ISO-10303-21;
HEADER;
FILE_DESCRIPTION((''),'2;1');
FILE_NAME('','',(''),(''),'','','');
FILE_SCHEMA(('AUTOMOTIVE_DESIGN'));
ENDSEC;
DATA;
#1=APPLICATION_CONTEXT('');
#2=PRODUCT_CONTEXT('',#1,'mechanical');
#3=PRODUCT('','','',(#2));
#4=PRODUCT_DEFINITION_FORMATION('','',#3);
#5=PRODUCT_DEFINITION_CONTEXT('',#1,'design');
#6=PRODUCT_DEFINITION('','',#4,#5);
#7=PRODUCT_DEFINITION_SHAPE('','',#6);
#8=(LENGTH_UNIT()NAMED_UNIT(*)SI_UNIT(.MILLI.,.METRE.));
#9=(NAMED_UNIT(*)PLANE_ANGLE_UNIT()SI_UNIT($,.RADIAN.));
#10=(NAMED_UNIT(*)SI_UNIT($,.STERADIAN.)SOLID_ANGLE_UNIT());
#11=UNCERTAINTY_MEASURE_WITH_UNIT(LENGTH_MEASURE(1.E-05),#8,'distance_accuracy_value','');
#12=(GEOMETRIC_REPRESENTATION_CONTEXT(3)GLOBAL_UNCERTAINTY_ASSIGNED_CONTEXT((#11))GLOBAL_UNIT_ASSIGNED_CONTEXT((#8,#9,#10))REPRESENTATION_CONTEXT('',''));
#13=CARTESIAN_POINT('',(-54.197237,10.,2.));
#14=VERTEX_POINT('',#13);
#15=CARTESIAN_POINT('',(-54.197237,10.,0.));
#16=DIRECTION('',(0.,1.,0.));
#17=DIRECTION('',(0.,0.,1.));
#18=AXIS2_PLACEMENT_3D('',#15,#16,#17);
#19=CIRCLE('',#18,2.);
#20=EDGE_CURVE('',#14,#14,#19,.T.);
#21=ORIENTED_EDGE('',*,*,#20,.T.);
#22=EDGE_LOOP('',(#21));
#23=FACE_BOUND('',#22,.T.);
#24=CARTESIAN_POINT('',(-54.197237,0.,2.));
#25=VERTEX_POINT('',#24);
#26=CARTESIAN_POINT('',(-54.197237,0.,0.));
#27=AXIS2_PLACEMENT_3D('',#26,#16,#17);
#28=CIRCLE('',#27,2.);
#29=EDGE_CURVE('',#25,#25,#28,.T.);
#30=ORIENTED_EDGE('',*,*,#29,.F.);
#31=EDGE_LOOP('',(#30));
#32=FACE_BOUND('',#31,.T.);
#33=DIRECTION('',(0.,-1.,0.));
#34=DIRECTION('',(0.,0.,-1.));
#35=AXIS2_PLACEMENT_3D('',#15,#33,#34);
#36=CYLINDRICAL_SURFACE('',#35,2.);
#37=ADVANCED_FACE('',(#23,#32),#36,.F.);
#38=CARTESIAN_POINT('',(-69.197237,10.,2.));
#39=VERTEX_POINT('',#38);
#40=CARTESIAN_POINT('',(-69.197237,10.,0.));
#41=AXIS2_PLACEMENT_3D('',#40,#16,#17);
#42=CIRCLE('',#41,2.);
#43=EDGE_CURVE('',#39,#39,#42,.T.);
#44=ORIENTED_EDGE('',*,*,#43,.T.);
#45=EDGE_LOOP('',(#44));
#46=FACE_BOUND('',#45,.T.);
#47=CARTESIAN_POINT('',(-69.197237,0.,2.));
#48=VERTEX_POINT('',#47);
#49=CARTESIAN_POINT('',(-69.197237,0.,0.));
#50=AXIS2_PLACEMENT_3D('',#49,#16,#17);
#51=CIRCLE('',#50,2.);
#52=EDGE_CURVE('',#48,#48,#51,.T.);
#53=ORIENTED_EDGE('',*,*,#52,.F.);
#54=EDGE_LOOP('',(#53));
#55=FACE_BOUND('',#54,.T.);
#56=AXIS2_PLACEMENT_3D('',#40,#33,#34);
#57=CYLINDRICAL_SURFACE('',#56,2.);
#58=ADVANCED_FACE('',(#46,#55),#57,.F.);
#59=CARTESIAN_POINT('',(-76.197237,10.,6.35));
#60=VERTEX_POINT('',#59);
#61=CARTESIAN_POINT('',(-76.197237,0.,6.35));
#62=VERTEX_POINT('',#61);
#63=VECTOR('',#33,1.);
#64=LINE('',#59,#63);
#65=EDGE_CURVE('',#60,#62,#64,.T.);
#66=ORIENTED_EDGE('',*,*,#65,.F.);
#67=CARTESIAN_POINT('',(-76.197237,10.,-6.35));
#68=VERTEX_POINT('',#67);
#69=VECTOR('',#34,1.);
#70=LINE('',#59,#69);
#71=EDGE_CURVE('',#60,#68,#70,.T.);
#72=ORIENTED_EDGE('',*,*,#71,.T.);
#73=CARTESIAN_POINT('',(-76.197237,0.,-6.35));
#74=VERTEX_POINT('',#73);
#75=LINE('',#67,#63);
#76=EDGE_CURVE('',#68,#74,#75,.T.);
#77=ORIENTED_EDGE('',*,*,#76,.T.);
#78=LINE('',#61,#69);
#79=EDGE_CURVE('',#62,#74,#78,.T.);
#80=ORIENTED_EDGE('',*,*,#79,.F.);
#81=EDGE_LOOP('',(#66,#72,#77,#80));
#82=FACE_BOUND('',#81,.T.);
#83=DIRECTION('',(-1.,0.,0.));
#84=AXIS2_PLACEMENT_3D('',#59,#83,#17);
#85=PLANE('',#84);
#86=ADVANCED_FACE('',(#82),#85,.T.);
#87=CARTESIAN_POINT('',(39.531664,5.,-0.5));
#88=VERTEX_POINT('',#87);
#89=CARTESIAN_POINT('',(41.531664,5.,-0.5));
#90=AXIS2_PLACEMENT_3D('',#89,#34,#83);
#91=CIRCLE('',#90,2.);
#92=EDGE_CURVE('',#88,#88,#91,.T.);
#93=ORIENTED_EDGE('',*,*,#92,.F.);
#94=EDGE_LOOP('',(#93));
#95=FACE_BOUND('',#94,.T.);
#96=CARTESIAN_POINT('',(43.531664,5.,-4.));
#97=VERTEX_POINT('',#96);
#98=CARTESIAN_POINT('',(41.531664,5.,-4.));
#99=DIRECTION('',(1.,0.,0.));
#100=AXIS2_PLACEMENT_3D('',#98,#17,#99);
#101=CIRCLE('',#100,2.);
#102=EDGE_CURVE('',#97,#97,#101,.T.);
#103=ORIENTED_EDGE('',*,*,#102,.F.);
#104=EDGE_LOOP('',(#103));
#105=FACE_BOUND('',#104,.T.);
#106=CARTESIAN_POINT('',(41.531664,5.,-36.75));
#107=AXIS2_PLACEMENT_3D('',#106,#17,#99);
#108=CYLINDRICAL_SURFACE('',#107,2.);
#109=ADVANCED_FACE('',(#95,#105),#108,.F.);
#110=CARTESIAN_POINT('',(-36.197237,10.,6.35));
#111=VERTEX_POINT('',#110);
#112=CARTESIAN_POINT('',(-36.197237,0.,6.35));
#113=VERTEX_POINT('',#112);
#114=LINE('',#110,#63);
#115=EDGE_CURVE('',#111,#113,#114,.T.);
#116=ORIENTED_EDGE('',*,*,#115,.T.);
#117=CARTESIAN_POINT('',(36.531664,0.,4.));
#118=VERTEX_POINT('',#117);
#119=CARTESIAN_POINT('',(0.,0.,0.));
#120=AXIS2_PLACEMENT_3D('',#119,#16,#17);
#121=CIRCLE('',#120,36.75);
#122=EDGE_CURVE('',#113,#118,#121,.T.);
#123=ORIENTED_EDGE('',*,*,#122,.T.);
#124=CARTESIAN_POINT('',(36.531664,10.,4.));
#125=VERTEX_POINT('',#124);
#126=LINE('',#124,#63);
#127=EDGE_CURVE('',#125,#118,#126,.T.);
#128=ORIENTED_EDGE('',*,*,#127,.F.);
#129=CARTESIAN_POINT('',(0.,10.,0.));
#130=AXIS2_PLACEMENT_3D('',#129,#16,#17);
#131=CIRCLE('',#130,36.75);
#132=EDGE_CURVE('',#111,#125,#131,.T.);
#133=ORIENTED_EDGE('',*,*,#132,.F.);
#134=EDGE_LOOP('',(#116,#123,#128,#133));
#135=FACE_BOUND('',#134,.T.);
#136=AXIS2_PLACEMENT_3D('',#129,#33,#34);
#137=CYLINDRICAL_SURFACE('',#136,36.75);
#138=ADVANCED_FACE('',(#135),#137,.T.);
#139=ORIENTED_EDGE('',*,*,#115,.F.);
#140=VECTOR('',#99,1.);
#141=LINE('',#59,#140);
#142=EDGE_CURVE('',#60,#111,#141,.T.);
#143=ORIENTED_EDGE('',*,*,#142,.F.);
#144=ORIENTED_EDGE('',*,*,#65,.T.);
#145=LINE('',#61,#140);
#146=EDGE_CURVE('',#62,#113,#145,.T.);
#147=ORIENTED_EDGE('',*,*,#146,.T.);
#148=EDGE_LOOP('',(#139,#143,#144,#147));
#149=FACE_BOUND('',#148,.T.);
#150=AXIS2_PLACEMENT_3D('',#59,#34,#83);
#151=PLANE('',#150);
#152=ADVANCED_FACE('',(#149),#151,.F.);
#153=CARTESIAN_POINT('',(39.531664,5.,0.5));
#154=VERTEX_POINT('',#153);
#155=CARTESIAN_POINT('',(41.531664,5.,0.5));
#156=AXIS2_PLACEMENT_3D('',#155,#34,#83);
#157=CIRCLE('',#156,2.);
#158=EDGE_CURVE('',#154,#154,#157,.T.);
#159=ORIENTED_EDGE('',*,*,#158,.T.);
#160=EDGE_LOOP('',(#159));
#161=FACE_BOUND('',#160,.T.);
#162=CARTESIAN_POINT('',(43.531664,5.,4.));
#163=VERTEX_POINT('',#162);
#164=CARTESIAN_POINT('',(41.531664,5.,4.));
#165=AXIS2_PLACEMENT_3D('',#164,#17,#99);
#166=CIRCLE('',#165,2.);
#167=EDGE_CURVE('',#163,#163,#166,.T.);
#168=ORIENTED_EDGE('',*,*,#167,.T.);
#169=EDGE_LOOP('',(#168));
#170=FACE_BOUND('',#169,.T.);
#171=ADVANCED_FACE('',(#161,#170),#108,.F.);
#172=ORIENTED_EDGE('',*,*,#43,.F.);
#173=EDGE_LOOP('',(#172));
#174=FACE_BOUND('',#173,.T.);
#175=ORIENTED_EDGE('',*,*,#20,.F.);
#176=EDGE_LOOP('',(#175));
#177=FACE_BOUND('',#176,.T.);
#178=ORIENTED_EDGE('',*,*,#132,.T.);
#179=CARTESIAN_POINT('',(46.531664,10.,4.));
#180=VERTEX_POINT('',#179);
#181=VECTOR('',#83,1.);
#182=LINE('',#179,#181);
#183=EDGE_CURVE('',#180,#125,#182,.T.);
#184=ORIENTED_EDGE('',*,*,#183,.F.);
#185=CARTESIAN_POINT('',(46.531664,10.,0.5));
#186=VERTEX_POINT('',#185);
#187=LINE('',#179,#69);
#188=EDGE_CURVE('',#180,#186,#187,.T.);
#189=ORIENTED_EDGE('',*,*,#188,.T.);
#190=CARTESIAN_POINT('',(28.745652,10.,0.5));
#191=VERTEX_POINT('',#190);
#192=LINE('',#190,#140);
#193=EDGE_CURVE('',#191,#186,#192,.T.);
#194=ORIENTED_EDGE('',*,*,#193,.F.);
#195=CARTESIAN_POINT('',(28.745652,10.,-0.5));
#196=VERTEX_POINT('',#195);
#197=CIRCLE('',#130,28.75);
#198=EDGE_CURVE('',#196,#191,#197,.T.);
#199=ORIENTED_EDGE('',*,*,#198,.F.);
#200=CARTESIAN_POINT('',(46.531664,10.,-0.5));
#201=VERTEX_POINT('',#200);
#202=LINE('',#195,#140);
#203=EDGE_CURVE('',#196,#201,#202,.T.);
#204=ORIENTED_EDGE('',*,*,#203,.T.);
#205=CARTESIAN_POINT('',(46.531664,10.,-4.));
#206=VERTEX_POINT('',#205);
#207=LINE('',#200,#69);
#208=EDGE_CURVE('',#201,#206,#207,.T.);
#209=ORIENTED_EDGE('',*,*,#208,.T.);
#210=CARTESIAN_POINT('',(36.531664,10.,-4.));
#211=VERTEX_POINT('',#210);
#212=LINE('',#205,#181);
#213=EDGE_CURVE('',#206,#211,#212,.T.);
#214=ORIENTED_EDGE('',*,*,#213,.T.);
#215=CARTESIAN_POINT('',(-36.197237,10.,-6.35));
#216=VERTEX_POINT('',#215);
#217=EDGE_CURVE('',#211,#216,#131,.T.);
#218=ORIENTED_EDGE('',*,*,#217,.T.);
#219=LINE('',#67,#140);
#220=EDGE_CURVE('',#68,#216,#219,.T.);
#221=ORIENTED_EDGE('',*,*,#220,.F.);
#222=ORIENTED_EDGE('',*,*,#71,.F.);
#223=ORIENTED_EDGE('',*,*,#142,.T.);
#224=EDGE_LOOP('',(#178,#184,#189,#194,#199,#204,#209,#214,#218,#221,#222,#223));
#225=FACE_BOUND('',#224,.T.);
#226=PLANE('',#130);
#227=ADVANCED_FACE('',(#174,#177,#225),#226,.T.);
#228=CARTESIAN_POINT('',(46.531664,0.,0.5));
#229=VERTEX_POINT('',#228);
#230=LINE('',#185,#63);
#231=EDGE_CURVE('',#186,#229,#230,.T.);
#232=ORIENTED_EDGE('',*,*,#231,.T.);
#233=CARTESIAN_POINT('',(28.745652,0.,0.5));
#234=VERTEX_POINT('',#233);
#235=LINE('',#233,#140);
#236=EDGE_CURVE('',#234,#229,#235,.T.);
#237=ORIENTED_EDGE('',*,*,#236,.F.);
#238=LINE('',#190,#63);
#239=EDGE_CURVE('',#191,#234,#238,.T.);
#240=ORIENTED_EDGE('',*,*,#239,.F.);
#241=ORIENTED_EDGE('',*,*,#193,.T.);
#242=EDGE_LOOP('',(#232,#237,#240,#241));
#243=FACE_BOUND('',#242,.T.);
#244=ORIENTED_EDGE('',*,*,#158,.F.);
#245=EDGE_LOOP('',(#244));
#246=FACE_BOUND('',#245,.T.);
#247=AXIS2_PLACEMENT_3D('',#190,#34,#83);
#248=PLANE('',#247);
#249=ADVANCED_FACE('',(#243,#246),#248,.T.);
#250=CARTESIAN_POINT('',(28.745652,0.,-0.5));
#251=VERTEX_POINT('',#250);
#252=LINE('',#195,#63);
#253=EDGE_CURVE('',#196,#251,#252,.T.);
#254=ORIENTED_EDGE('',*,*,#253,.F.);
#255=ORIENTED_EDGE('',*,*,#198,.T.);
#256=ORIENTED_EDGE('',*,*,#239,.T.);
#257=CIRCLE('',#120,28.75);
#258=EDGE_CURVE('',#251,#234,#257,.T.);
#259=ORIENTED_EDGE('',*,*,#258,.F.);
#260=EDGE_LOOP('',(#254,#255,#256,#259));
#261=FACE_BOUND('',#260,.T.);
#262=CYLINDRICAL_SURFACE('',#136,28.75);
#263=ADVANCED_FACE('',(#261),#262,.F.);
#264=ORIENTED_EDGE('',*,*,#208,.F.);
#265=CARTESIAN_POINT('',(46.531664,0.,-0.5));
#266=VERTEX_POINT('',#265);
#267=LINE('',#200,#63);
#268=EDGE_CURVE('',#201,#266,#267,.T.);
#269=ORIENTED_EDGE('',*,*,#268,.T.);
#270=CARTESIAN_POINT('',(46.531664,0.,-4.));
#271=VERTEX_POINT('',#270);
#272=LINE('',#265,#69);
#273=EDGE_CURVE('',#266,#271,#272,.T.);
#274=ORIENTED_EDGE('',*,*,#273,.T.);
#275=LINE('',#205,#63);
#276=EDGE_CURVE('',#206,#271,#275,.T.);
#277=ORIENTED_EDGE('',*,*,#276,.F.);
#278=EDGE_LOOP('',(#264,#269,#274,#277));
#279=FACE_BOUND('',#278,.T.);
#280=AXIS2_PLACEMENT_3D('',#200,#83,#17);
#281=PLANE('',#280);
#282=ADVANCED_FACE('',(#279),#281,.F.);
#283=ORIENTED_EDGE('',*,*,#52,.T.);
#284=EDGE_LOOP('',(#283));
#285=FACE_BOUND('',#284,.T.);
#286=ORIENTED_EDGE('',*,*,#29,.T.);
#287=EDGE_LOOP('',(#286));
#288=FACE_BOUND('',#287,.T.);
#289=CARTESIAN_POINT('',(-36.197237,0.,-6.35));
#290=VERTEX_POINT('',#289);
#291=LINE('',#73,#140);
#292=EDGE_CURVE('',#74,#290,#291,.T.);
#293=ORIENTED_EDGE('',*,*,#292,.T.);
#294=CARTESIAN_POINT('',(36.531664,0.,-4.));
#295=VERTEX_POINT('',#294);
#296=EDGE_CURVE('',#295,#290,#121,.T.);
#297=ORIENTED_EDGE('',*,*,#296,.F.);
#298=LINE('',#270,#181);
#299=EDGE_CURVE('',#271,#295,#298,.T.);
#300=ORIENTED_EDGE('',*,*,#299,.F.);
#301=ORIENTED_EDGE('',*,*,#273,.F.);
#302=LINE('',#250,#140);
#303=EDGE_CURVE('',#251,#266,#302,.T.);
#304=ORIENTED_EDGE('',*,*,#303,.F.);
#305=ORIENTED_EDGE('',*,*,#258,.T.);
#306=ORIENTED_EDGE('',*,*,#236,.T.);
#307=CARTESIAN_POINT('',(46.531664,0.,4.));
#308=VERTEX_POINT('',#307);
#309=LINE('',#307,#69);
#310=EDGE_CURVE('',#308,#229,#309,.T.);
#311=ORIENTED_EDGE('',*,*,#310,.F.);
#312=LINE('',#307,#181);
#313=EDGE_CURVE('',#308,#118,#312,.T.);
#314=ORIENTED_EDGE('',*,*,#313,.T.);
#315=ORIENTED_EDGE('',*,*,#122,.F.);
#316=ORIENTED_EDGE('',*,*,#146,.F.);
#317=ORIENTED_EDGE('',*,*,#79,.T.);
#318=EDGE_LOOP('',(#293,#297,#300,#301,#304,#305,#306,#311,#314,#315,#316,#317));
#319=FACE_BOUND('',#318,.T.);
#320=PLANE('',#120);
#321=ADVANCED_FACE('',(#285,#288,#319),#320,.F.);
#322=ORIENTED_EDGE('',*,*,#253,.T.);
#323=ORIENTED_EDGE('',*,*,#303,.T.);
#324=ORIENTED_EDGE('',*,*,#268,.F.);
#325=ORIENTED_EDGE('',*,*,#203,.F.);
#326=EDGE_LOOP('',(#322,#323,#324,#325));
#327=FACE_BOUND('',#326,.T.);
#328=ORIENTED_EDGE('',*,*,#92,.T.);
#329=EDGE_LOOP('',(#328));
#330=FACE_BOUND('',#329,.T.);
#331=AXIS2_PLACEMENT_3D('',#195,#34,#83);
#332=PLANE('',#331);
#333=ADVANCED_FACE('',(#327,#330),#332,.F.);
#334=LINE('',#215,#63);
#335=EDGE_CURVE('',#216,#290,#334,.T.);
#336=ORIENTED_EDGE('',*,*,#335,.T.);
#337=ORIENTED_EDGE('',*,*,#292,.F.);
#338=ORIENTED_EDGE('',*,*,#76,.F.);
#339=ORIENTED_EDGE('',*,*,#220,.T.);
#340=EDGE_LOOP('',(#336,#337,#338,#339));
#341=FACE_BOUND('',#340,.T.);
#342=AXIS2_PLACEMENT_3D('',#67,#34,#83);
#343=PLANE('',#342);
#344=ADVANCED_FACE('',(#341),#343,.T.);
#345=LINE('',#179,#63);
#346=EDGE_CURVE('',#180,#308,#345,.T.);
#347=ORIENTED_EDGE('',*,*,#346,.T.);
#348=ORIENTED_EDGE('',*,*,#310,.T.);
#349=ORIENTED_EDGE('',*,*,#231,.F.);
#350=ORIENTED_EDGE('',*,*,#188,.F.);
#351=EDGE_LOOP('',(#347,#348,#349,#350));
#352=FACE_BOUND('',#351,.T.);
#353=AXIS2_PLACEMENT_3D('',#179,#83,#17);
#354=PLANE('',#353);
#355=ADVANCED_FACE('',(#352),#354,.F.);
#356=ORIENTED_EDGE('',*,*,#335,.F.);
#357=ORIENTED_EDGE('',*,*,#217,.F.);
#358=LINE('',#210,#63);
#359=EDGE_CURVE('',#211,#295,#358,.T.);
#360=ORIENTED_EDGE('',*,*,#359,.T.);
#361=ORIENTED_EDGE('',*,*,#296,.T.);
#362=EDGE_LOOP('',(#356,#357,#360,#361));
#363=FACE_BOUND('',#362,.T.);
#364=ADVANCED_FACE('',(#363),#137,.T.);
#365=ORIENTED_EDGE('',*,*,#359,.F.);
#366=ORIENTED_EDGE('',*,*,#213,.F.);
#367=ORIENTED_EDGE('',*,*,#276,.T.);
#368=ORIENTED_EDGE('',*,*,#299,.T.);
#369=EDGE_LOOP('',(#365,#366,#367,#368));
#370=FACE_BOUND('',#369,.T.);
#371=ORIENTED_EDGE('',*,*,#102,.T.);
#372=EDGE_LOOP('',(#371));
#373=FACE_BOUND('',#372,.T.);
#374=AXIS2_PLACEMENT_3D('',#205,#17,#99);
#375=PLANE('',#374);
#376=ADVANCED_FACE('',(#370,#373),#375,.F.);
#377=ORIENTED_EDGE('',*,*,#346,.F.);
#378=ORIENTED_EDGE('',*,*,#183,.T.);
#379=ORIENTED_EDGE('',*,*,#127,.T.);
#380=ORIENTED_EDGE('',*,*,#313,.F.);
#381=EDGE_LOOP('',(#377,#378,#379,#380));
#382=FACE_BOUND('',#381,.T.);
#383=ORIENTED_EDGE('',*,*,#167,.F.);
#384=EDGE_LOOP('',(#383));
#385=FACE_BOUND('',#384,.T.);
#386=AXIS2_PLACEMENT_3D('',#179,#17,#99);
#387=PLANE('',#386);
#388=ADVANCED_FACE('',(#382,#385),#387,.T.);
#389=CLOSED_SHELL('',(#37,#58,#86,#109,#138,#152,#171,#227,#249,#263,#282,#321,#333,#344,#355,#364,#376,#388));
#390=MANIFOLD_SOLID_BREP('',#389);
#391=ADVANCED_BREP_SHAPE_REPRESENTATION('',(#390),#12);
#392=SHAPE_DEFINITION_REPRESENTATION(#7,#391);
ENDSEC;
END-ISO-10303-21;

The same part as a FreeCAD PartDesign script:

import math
import FreeCAD as App
import Part
import Sketcher
from FreeCAD import Vector

doc = App.newDocument("Part")
body = doc.addObject("PartDesign::Body", "Body")

# Sketch on XZ plane
sketch1 = doc.addObject("Sketcher::SketchObject", "Sketch")
body.addObject(sketch1)
sketch1.AttachmentSupport = (doc.XZ_Plane, [""])
sketch1.MapMode = "FlatFace"
sketch1.addGeometry([
    Part.LineSegment(Vector(-76.197237, 6.35, 0), Vector(-36.197237, 6.35, 0)),  # 0
    Part.ArcOfCircle(Part.Circle(Vector(0, 0, 0), Vector(0, 0, 1), 36.75), math.radians(6.248655), math.radians(170.049976)),  # 1
    Part.LineSegment(Vector(36.531664, 4, 0), Vector(46.531664, 4, 0)),  # 2
    Part.LineSegment(Vector(46.531664, 4, 0), Vector(46.531664, 0.5, 0)),  # 3
    Part.LineSegment(Vector(46.531664, 0.5, 0), Vector(28.745652, 0.5, 0)),  # 4
    Part.ArcOfCircle(Part.Circle(Vector(0, 0, 0), Vector(0, 0, 1), 28.75), math.radians(0.996499), math.radians(359.003501)),  # 5
    Part.LineSegment(Vector(28.745652, -0.5, 0), Vector(46.531664, -0.5, 0)),  # 6
    Part.LineSegment(Vector(46.531664, -0.5, 0), Vector(46.531664, -4, 0)),  # 7
    Part.LineSegment(Vector(46.531664, -4, 0), Vector(36.531664, -4, 0)),  # 8
    Part.ArcOfCircle(Part.Circle(Vector(0, 0, 0), Vector(0, 0, 1), 36.75), math.radians(-170.049976), math.radians(-6.248655)),  # 9
    Part.LineSegment(Vector(-36.197237, -6.35, 0), Vector(-76.197237, -6.35, 0)),  # 10
    Part.LineSegment(Vector(-76.197237, -6.35, 0), Vector(-76.197237, 6.35, 0)),  # 11
    Part.Circle(Vector(-69.197237, 0, 0), Vector(0, 0, 1), 2),  # 12
    Part.Circle(Vector(-54.197237, 0, 0), Vector(0, 0, 1), 2),  # 13
], False)
sketch1.addConstraint([
    Sketcher.Constraint("Coincident", 0, 2, 1, 2),
    Sketcher.Constraint("Coincident", 1, 1, 2, 1),
    Sketcher.Constraint("Coincident", 2, 2, 3, 1),
    Sketcher.Constraint("Coincident", 3, 2, 4, 1),
    Sketcher.Constraint("Coincident", 4, 2, 5, 1),
    Sketcher.Constraint("Coincident", 5, 2, 6, 1),
    Sketcher.Constraint("Coincident", 6, 2, 7, 1),
    Sketcher.Constraint("Coincident", 7, 2, 8, 1),
    Sketcher.Constraint("Coincident", 8, 2, 9, 2),
    Sketcher.Constraint("Coincident", 9, 1, 10, 1),
    Sketcher.Constraint("Coincident", 10, 2, 11, 1),
    Sketcher.Constraint("Coincident", 11, 2, 0, 1),
    Sketcher.Constraint("Horizontal", 0),
    Sketcher.Constraint("Horizontal", 2),
    Sketcher.Constraint("Vertical", 3),
    Sketcher.Constraint("Horizontal", 4),
    Sketcher.Constraint("Horizontal", 6),
    Sketcher.Constraint("Vertical", 7),
    Sketcher.Constraint("Horizontal", 8),
    Sketcher.Constraint("Horizontal", 10),
    Sketcher.Constraint("Vertical", 11),
    Sketcher.Constraint("Coincident", 1, 3, -1, 1),
    Sketcher.Constraint("Coincident", 5, 3, -1, 1),
    Sketcher.Constraint("Coincident", 9, 3, -1, 1),
    Sketcher.Constraint("Equal", 1, 9),
    Sketcher.Constraint("Equal", 12, 13),
    Sketcher.Constraint("Symmetric", 3, 2, 6, 2, -1),
    Sketcher.Constraint("PointOnObject", 12, 3, -1),
    Sketcher.Constraint("PointOnObject", 13, 3, -1),
    Sketcher.Constraint("Vertical", 1, 1, 8, 2),
    Sketcher.Constraint("Vertical", 0, 2, 9, 1),
    Sketcher.Constraint("Diameter", 12, 4.0),
    Sketcher.Constraint("DistanceX", 0, 1, 0, 2, 40.0),
    Sketcher.Constraint("DistanceX", 2, 1, 2, 2, 10.0),
    Sketcher.Constraint("Radius", 1, 36.75),
    Sketcher.Constraint("Radius", 5, 28.75),
    Sketcher.Constraint("DistanceY", 3, 2, 3, 1, 3.5),
    Sketcher.Constraint("DistanceY", 11, 1, 11, 2, 12.7),
    Sketcher.Constraint("DistanceY", -1, 1, 1, 1, 4.0),
    Sketcher.Constraint("DistanceX", 12, 3, 13, 3, 15.0),
    Sketcher.Constraint("DistanceX", 13, 3, 0, 2, 18.0),
])
pad1 = doc.addObject("PartDesign::Pad", "Pad")
body.addObject(pad1)
pad1.Profile = sketch1
pad1.Length = 10
pad1.Reversed = True

# Sketch on XY plane
sketch2 = doc.addObject("Sketcher::SketchObject", "Sketch001")
body.addObject(sketch2)
sketch2.AttachmentSupport = (doc.XY_Plane, [""])
sketch2.MapMode = "FlatFace"
sketch2.AttachmentOffset = App.Placement(Vector(0, 0, 4), App.Rotation())
sketch2.addGeometry(Part.Circle(Vector(41.531664, 5, 0), Vector(0, 0, 1), 2), False)
sketch2.addConstraint([
    Sketcher.Constraint("Diameter", 0, 4.0),
    Sketcher.Constraint("DistanceY", -1, 1, 0, 3, 5.0),
    Sketcher.Constraint("DistanceX", -1, 1, 0, 3, 41.531664),
])
pocket1 = doc.addObject("PartDesign::Pocket", "Pocket")
body.addObject(pocket1)
pocket1.Profile = sketch2
pocket1.Type = "ThroughAll"

doc.recompute()
